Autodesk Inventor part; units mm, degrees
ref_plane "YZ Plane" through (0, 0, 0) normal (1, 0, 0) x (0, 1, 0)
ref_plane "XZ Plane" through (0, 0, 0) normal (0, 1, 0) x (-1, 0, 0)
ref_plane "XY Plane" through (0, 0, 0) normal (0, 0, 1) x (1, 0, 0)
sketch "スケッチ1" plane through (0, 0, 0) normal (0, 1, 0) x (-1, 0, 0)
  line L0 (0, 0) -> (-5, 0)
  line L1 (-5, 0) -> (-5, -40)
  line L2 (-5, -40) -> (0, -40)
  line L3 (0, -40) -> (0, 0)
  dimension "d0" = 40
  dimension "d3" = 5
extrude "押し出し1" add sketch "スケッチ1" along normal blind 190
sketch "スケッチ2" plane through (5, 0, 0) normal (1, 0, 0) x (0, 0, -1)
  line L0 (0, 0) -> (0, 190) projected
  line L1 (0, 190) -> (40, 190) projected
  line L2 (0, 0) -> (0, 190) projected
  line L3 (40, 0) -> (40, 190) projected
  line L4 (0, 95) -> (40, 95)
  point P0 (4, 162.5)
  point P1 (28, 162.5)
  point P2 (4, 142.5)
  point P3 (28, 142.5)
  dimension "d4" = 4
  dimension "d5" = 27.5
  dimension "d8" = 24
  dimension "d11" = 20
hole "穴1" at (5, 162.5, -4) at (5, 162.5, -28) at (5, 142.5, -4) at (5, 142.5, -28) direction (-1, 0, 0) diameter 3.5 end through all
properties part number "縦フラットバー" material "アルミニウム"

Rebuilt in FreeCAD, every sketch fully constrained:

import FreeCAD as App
import Part
import Sketcher
from FreeCAD import Vector


def add_polygon(sketch, points):
    """Adds a closed chain of lines whose ends are joined by coincident constraints."""
    first, n = sketch.GeometryCount, len(points)
    for a, b in zip(points, points[1:] + points[:1]):
        sketch.addGeometry(Part.LineSegment(App.Vector(*a, 0), App.Vector(*b, 0)), False)
    for i in range(n):
        sketch.addConstraint(Sketcher.Constraint("Coincident", first + i, 2, first + (i + 1) % n, 1))

doc = App.newDocument("Part")
body = doc.addObject("PartDesign::Body", "Body")

# Sketch on XZ plane
sketch1 = body.newObject("Sketcher::SketchObject", "Sketch")
sketch1.AttachmentSupport = (doc.getObject("XZ_Plane"), [""])
sketch1.MapMode = "FlatFace"
add_polygon(sketch1, [(0, -40), (0, 0), (5, 0), (5, -40)])  # lines 0-3
sketch1.addConstraint([
    Sketcher.Constraint("Vertical", 0),
    Sketcher.Constraint("Horizontal", 1),
    Sketcher.Constraint("Vertical", 2),
    Sketcher.Constraint("Horizontal", 3),
    Sketcher.Constraint("Coincident", 0, 2, -1, 1),
    Sketcher.Constraint("DistanceX", 1, 1, 1, 2, 5.0),
    Sketcher.Constraint("DistanceY", 0, 1, 0, 2, 40.0),
])
pad1 = body.newObject("PartDesign::Pad", "Pad")
pad1.Profile = sketch1
pad1.Length = 190
pad1.Reversed = True

# Sketch on YZ plane
sketch2 = body.newObject("Sketcher::SketchObject", "Sketch001")
sketch2.AttachmentSupport = (doc.getObject("YZ_Plane"), [""])
sketch2.MapMode = "FlatFace"
sketch2.AttachmentOffset = App.Placement(Vector(0, 0, 5), App.Rotation())
sketch2.addGeometry([
    Part.Circle(Vector(162.5, -4, 0), Vector(0, 0, 1), 1.8),
    Part.Circle(Vector(162.5, -28, 0), Vector(0, 0, 1), 1.8),
    Part.Circle(Vector(142.5, -4, 0), Vector(0, 0, 1), 1.8),
    Part.Circle(Vector(142.5, -28, 0), Vector(0, 0, 1), 1.8),
], False)
sketch2.addConstraint([
    Sketcher.Constraint("Equal", 0, 1),
    Sketcher.Constraint("Equal", 1, 2),
    Sketcher.Constraint("Equal", 2, 3),
    Sketcher.Constraint("Horizontal", 0, 3, 2, 3),
    Sketcher.Constraint("Horizontal", 1, 3, 3, 3),
    Sketcher.Constraint("Vertical", 0, 3, 1, 3),
    Sketcher.Constraint("Vertical", 2, 3, 3, 3),
    Sketcher.Constraint("Diameter", 0, 3.5),
    Sketcher.Constraint("DistanceY", 0, 3, -1, 1, 4.0),
    Sketcher.Constraint("DistanceY", 1, 3, -1, 1, 28.0),
    Sketcher.Constraint("DistanceX", 2, 3, 0, 3, 20.0),
    Sketcher.Constraint("DistanceX", -1, 1, 0, 3, 162.5),
])
doc.recompute()
hole = body.newObject("PartDesign::Hole", "Hole")
hole.Profile = sketch2
hole.ThreadType = "None"
hole.Diameter = 3.5
hole.DepthType = "ThroughAll"

doc.recompute()
